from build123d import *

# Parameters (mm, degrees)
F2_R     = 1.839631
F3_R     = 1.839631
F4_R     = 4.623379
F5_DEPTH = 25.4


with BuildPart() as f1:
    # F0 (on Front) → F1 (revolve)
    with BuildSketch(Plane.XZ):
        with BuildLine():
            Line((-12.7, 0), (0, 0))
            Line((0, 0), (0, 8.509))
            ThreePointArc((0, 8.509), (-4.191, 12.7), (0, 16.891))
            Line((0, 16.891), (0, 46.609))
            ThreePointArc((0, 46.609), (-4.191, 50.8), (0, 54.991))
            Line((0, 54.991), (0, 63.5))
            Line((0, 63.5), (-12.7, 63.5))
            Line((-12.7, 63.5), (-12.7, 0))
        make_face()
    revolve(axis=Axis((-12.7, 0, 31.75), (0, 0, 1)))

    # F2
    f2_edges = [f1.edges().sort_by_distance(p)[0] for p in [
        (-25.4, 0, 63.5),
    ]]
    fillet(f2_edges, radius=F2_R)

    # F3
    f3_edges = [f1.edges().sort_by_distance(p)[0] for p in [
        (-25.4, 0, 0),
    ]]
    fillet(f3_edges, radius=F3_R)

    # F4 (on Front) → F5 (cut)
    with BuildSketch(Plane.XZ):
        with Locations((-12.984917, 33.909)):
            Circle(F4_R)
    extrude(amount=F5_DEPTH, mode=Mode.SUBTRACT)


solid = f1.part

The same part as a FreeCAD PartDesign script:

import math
import FreeCAD as App
import Part
import Sketcher
from FreeCAD import Vector
Q = App.Units.Quantity


def edges_at(feature, points):
    """Names of the edges that pass closest to the given points."""
    edges = feature.Shape.Edges
    near = lambda p: min(range(len(edges)), key=lambda i: edges[i].distToShape(Part.Vertex(*p))[0])
    return sorted({f"Edge{near(p) + 1}" for p in points})

doc = App.newDocument("Part")
body = doc.addObject("PartDesign::Body", "Body")

sketch1 = body.newObject("Sketcher::SketchObject", "Sketch")
sketch1.AttachmentSupport = (doc.getObject("XZ_Plane"), [""])
sketch1.MapMode = "FlatFace"
sketch1.addGeometry([
    Part.LineSegment(Vector(-12.7, 0, 0), Vector(0, 0, 0)),
    Part.LineSegment(Vector(0, 0, 0), Vector(0, 8.509, 0)),
    Part.ArcOfCircle(Part.Circle(Vector(0, 12.7, 0), Vector(0, 0, 1), 4.191), math.radians(90), math.radians(270)),
    Part.LineSegment(Vector(0, 16.891, 0), Vector(0, 46.609, 0)),
    Part.ArcOfCircle(Part.Circle(Vector(0, 50.8, 0), Vector(0, 0, 1), 4.191), math.radians(90), math.radians(270)),
    Part.LineSegment(Vector(0, 54.991, 0), Vector(0, 63.5, 0)),
    Part.LineSegment(Vector(0, 63.5, 0), Vector(-12.7, 63.5, 0)),
    Part.LineSegment(Vector(-12.7, 63.5, 0), Vector(-12.7, 0, 0)),
], False)
sketch1.addGeometry(Part.LineSegment(Vector(-12.7, 0, 0), Vector(-12.7, 63.5, 0)), True)
sketch1.addConstraint([
    Sketcher.Constraint("Coincident", 0, 2, 1, 1),
    Sketcher.Constraint("Coincident", 1, 2, 2, 2),
    Sketcher.Constraint("Coincident", 2, 1, 3, 1),
    Sketcher.Constraint("Coincident", 3, 2, 4, 2),
    Sketcher.Constraint("Coincident", 4, 1, 5, 1),
    Sketcher.Constraint("Coincident", 5, 2, 6, 1),
    Sketcher.Constraint("Coincident", 6, 2, 7, 1),
    Sketcher.Constraint("Coincident", 7, 2, 0, 1),
    Sketcher.Constraint("Horizontal", 0),
    Sketcher.Constraint("Vertical", 1),
    Sketcher.Constraint("Vertical", 3),
    Sketcher.Constraint("Vertical", 5),
    Sketcher.Constraint("Horizontal", 6),
    Sketcher.Constraint("Vertical", 7),
    Sketcher.Constraint("Vertical", 8),
    Sketcher.Constraint("Coincident", 0, 2, -1, 1),
    Sketcher.Constraint("Coincident", 8, 1, 7, 2),
    Sketcher.Constraint("Equal", 2, 4),
    Sketcher.Constraint("PointOnObject", 2, 3, -2),
    Sketcher.Constraint("PointOnObject", 4, 3, -2),
    Sketcher.Constraint("PointOnObject", 2, 1, -2),
    Sketcher.Constraint("PointOnObject", 4, 1, -2),
    Sketcher.Constraint("Horizontal", 5, 2, 8, 2),
    Sketcher.Constraint("Equal", 1, 5),
    Sketcher.Constraint("DistanceX", 0, 1, 0, 2, Q("0.5 in")),
    Sketcher.Constraint("DistanceY", 7, 2, 7, 1, Q("2.5 in")),
    Sketcher.Constraint("DistanceY", -1, 1, 4, 3, Q("2 in")),
    Sketcher.Constraint("Radius", 2, Q("0.165 in")),
])
revolution = body.newObject("PartDesign::Revolution", "Revolution")
revolution.Profile = sketch1
revolution.ReferenceAxis = (sketch1, ["Axis0"])
revolution.Angle = 360
doc.recompute()

fillet = body.newObject("PartDesign::Fillet", "Fillet")
fillet.Base = (revolution, edges_at(revolution, [(-25.4, 0, 63.5)]))
fillet.Radius = 1.839631
doc.recompute()

fillet2 = body.newObject("PartDesign::Fillet", "Fillet001")
fillet2.Base = (fillet, edges_at(fillet, [(-25.4, 0, 0)]))
fillet2.Radius = 1.839631

sketch2 = body.newObject("Sketcher::SketchObject", "Sketch001")
sketch2.AttachmentSupport = (doc.getObject("XZ_Plane"), [""])
sketch2.MapMode = "FlatFace"
sketch2.addGeometry(Part.Circle(Vector(-12.984917, 33.909, 0), Vector(0, 0, 1), 4.623379), False)
sketch2.addConstraint([
    Sketcher.Constraint("DistanceY", -1, 1, 0, 3, Q("1.335 in")),
    Sketcher.Constraint("Diameter", 0, 9.246758),
    Sketcher.Constraint("DistanceX", 0, 3, -1, 1, 12.984917),
])
pocket1 = body.newObject("PartDesign::Pocket", "Pocket")
pocket1.Profile = sketch2
pocket1.Length = Q("1 in")
pocket1.Reversed = True

doc.recompute()
